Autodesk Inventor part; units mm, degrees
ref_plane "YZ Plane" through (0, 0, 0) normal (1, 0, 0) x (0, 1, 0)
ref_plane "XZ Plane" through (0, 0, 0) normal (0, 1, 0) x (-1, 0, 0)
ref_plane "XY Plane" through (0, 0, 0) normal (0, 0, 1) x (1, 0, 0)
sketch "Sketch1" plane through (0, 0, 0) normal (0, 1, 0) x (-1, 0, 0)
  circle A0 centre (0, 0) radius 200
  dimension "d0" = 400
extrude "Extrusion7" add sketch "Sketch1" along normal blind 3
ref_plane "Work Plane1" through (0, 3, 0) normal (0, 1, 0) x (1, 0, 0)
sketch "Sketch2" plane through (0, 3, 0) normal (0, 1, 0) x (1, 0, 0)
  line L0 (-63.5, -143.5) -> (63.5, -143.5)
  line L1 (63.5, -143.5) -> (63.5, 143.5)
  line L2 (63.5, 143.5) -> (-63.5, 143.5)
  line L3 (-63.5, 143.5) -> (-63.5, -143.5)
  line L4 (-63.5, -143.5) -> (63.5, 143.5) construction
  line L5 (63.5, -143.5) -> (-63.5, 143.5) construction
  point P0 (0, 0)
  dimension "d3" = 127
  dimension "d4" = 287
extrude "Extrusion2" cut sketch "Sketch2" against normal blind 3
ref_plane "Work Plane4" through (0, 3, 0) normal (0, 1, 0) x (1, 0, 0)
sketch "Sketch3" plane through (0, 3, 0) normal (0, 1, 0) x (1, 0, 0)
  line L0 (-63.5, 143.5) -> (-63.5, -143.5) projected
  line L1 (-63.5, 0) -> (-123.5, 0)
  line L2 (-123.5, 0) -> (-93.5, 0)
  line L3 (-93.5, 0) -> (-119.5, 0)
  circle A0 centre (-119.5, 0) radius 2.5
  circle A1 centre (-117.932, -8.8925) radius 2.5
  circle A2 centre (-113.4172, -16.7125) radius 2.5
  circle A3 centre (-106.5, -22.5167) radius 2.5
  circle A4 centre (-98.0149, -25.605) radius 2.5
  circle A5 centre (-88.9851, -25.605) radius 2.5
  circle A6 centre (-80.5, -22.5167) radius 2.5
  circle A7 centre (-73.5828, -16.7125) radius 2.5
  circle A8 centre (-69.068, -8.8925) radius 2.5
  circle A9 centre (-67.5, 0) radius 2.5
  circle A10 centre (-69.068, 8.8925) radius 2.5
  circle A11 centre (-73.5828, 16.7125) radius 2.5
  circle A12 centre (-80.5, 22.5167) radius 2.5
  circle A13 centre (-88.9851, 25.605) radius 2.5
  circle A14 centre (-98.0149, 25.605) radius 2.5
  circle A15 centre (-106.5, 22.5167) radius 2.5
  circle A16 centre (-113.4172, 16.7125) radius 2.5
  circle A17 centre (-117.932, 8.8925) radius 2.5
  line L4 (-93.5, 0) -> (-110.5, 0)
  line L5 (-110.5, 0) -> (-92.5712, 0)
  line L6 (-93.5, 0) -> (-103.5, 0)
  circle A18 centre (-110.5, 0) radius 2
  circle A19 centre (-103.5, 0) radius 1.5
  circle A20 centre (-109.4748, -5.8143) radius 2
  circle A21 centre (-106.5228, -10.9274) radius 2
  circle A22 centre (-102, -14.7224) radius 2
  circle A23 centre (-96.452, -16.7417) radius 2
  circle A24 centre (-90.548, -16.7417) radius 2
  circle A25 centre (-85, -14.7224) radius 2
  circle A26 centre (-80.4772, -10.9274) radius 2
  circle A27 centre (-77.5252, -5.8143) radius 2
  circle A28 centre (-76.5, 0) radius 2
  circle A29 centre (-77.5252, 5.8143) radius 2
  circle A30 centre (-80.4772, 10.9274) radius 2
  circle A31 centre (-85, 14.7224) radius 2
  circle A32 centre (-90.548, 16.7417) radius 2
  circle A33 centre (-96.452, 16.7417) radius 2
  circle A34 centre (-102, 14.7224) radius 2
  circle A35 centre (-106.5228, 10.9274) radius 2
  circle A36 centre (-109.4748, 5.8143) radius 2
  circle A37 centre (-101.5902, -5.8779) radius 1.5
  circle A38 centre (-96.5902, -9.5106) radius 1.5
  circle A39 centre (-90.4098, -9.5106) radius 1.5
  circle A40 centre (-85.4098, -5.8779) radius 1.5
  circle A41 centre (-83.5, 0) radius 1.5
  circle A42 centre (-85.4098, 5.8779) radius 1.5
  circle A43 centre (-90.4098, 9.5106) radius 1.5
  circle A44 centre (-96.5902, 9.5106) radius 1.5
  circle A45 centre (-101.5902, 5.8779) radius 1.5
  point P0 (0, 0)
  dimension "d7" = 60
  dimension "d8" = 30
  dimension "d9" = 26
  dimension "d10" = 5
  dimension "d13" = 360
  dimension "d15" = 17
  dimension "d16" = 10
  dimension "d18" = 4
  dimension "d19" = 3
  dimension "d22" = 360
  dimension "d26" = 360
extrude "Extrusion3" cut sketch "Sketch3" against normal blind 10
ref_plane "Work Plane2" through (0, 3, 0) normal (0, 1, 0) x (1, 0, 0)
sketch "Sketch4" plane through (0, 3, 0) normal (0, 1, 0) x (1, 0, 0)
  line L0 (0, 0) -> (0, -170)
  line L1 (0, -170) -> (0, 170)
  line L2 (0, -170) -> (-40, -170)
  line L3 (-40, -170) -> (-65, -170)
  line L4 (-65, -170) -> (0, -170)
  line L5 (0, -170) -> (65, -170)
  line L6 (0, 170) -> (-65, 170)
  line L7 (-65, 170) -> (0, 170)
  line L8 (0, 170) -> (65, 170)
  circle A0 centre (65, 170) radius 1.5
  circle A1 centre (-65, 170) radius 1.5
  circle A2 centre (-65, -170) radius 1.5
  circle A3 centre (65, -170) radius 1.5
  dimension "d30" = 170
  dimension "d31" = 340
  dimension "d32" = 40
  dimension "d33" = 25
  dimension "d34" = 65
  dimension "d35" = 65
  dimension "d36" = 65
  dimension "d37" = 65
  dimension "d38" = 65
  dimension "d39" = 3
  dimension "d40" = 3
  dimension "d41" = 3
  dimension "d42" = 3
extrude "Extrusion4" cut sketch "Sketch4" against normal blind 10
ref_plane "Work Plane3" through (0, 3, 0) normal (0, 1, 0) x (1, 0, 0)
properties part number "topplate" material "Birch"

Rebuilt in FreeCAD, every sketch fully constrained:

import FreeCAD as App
import Part
import Sketcher

V = App.Vector


def add_polygon(sketch, points):
    """Adds a closed chain of lines whose ends are joined by coincident constraints."""
    first, n = sketch.GeometryCount, len(points)
    for a, b in zip(points, points[1:] + points[:1]):
        sketch.addGeometry(Part.LineSegment(App.Vector(*a, 0), App.Vector(*b, 0)), False)
    for i in range(n):
        sketch.addConstraint(Sketcher.Constraint("Coincident", first + i, 2, first + (i + 1) % n, 1))

doc = App.newDocument("Part")
params = doc.addObject("Spreadsheet::Sheet", "Params")
for row, (alias, value) in enumerate([
    ("sketch1_diameter", "400 mm"),
    ("pad1_length", "3 mm"),
    ("sketch2_width", "127 mm"),
    ("sketch2_height", "287 mm"),
    ("pocket1_length", "3 mm"),
    ("sketch3_diameter", "5 mm"),
    ("sketch3_diameter2", "4 mm"),
    ("sketch3_diameter3", "3 mm"),
    ("pocket2_length", "10 mm"),
    ("sketch4_diameter", "3 mm"),
    ("pocket3_length", "10 mm"),
], start=1):
    params.set(f"A{row}", alias)
    params.set(f"B{row}", "=" + value)
    params.setAlias(f"B{row}", alias)

body = doc.addObject("PartDesign::Body", "Body")

# Sketch on XZ plane
sketch1 = doc.addObject("Sketcher::SketchObject", "Sketch")
body.addObject(sketch1)
sketch1.AttachmentSupport = (doc.XZ_Plane, [""])
sketch1.MapMode = "FlatFace"
sketch1.addGeometry(Part.Circle(V(0, 0, 0), V(0, 0, 1), 200), False)
sketch1.addConstraint(Sketcher.Constraint("Coincident", 0, 3, -1, 1))
sketch1.addConstraint(Sketcher.Constraint("Diameter", 0, 400.0))
sketch1.setExpression("Constraints[1]", "Params.sketch1_diameter")
pad1 = doc.addObject("PartDesign::Pad", "Pad")
body.addObject(pad1)
pad1.Profile = sketch1
pad1.setExpression("Length", "Params.pad1_length")
pad1.Reversed = True

# Sketch on XZ plane
sketch2 = doc.addObject("Sketcher::SketchObject", "Sketch001")
body.addObject(sketch2)
sketch2.AttachmentSupport = (doc.XZ_Plane, [""])
sketch2.MapMode = "FlatFace"
sketch2.AttachmentOffset = App.Placement(V(0, 0, -3), App.Rotation())
add_polygon(sketch2, [(-63.5, -143.5), (-63.5, 143.5), (63.5, 143.5), (63.5, -143.5)])  # lines 0-3
sketch2.addConstraint(Sketcher.Constraint("Vertical", 0))
sketch2.addConstraint(Sketcher.Constraint("Horizontal", 1))
sketch2.addConstraint(Sketcher.Constraint("Vertical", 2))
sketch2.addConstraint(Sketcher.Constraint("Horizontal", 3))
sketch2.addConstraint(Sketcher.Constraint("Symmetric", 0, 2, 2, 2, -1, 1))
sketch2.addConstraint(Sketcher.Constraint("DistanceX", 1, 1, 1, 2, 127.0))
sketch2.addConstraint(Sketcher.Constraint("DistanceY", 0, 1, 0, 2, 287.0))
sketch2.setExpression("Constraints[9]", "Params.sketch2_width")
sketch2.setExpression("Constraints[10]", "Params.sketch2_height")
pocket1 = doc.addObject("PartDesign::Pocket", "Pocket")
body.addObject(pocket1)
pocket1.Profile = sketch2
pocket1.setExpression("Length", "Params.pocket1_length")
pocket1.Reversed = True

# Sketch on XZ plane
sketch3 = doc.addObject("Sketcher::SketchObject", "Sketch002")
body.addObject(sketch3)
sketch3.AttachmentSupport = (doc.XZ_Plane, [""])
sketch3.MapMode = "FlatFace"
sketch3.AttachmentOffset = App.Placement(V(0, 0, -3), App.Rotation())
sketch3.addGeometry(Part.Circle(V(-119.5, 0, 0), V(0, 0, 1), 2.5), False)
sketch3.addGeometry(Part.Circle(V(-110.5, 0, 0), V(0, 0, 1), 2), False)
sketch3.addGeometry(Part.Circle(V(-103.5, 0, 0), V(0, 0, 1), 1.5), False)
sketch3.addGeometry(Part.Circle(V(-67.5, 0, 0), V(0, 0, 1), 2.5), False)
sketch3.addGeometry(Part.Circle(V(-76.5, 0, 0), V(0, 0, 1), 2), False)
sketch3.addGeometry(Part.Circle(V(-83.5, 0, 0), V(0, 0, 1), 1.5), False)
sketch3.addGeometry(Part.Circle(V(-117.932, 8.8925, 0), V(0, 0, 1), 2.5), False)
sketch3.addGeometry(Part.Circle(V(-113.4172, 16.7125, 0), V(0, 0, 1), 2.5), False)
sketch3.addGeometry(Part.Circle(V(-106.5, 22.5167, 0), V(0, 0, 1), 2.5), False)
sketch3.addGeometry(Part.Circle(V(-98.0149, 25.605, 0), V(0, 0, 1), 2.5), False)
sketch3.addGeometry(Part.Circle(V(-88.9851, 25.605, 0), V(0, 0, 1), 2.5), False)
sketch3.addGeometry(Part.Circle(V(-80.5, 22.5167, 0), V(0, 0, 1), 2.5), False)
sketch3.addGeometry(Part.Circle(V(-73.5828, 16.7125, 0), V(0, 0, 1), 2.5), False)
sketch3.addGeometry(Part.Circle(V(-69.068, 8.8925, 0), V(0, 0, 1), 2.5), False)
sketch3.addGeometry(Part.Circle(V(-69.068, -8.8925, 0), V(0, 0, 1), 2.5), False)
sketch3.addGeometry(Part.Circle(V(-73.5828, -16.7125, 0), V(0, 0, 1), 2.5), False)
sketch3.addGeometry(Part.Circle(V(-80.5, -22.5167, 0), V(0, 0, 1), 2.5), False)
sketch3.addGeometry(Part.Circle(V(-88.9851, -25.605, 0), V(0, 0, 1), 2.5), False)
sketch3.addGeometry(Part.Circle(V(-98.0149, -25.605, 0), V(0, 0, 1), 2.5), False)
sketch3.addGeometry(Part.Circle(V(-106.5, -22.5167, 0), V(0, 0, 1), 2.5), False)
sketch3.addGeometry(Part.Circle(V(-113.4172, -16.7125, 0), V(0, 0, 1), 2.5), False)
sketch3.addGeometry(Part.Circle(V(-117.932, -8.8925, 0), V(0, 0, 1), 2.5), False)
sketch3.addGeometry(Part.Circle(V(-109.4748, 5.8143, 0), V(0, 0, 1), 2), False)
sketch3.addGeometry(Part.Circle(V(-106.5228, 10.9274, 0), V(0, 0, 1), 2), False)
sketch3.addGeometry(Part.Circle(V(-102, 14.7224, 0), V(0, 0, 1), 2), False)
sketch3.addGeometry(Part.Circle(V(-96.452, 16.7417, 0), V(0, 0, 1), 2), False)
sketch3.addGeometry(Part.Circle(V(-90.548, 16.7417, 0), V(0, 0, 1), 2), False)
sketch3.addGeometry(Part.Circle(V(-85, 14.7224, 0), V(0, 0, 1), 2), False)
sketch3.addGeometry(Part.Circle(V(-80.4772, 10.9274, 0), V(0, 0, 1), 2), False)
sketch3.addGeometry(Part.Circle(V(-77.5252, 5.8143, 0), V(0, 0, 1), 2), False)
sketch3.addGeometry(Part.Circle(V(-77.5252, -5.8143, 0), V(0, 0, 1), 2), False)
sketch3.addGeometry(Part.Circle(V(-80.4772, -10.9274, 0), V(0, 0, 1), 2), False)
sketch3.addGeometry(Part.Circle(V(-85, -14.7224, 0), V(0, 0, 1), 2), False)
sketch3.addGeometry(Part.Circle(V(-90.548, -16.7417, 0), V(0, 0, 1), 2), False)
sketch3.addGeometry(Part.Circle(V(-96.452, -16.7417, 0), V(0, 0, 1), 2), False)
sketch3.addGeometry(Part.Circle(V(-102, -14.7224, 0), V(0, 0, 1), 2), False)
sketch3.addGeometry(Part.Circle(V(-106.5228, -10.9274, 0), V(0, 0, 1), 2), False)
sketch3.addGeometry(Part.Circle(V(-109.4748, -5.8143, 0), V(0, 0, 1), 2), False)
sketch3.addGeometry(Part.Circle(V(-101.5902, 5.8779, 0), V(0, 0, 1), 1.5), False)
sketch3.addGeometry(Part.Circle(V(-96.5902, 9.5106, 0), V(0, 0, 1), 1.5), False)
sketch3.addGeometry(Part.Circle(V(-90.4098, 9.5106, 0), V(0, 0, 1), 1.5), False)
sketch3.addGeometry(Part.Circle(V(-85.4098, 5.8779, 0), V(0, 0, 1), 1.5), False)
sketch3.addGeometry(Part.Circle(V(-85.4098, -5.8779, 0), V(0, 0, 1), 1.5), False)
sketch3.addGeometry(Part.Circle(V(-90.4098, -9.5106, 0), V(0, 0, 1), 1.5), False)
sketch3.addGeometry(Part.Circle(V(-96.5902, -9.5106, 0), V(0, 0, 1), 1.5), False)
sketch3.addGeometry(Part.Circle(V(-101.5902, -5.8779, 0), V(0, 0, 1), 1.5), False)
sketch3.addConstraint(Sketcher.Constraint("Equal", 0, 3))
sketch3.addConstraint(Sketcher.Constraint("Equal", 1, 4))
sketch3.addConstraint(Sketcher.Constraint("Equal", 2, 5))
sketch3.addConstraint(Sketcher.Constraint("Equal", 3, 6))
sketch3.addConstraint(Sketcher.Constraint("Equal", 6, 7))
sketch3.addConstraint(Sketcher.Constraint("Equal", 7, 8))
sketch3.addConstraint(Sketcher.Constraint("Equal", 8, 9))
sketch3.addConstraint(Sketcher.Constraint("Equal", 9, 10))
sketch3.addConstraint(Sketcher.Constraint("Equal", 10, 11))
sketch3.addConstraint(Sketcher.Constraint("Equal", 11, 12))
sketch3.addConstraint(Sketcher.Constraint("Equal", 12, 13))
sketch3.addConstraint(Sketcher.Constraint("Equal", 13, 14))
sketch3.addConstraint(Sketcher.Constraint("Equal", 14, 15))
sketch3.addConstraint(Sketcher.Constraint("Equal", 15, 16))
sketch3.addConstraint(Sketcher.Constraint("Equal", 16, 17))
sketch3.addConstraint(Sketcher.Constraint("Equal", 17, 18))
sketch3.addConstraint(Sketcher.Constraint("Equal", 18, 19))
sketch3.addConstraint(Sketcher.Constraint("Equal", 19, 20))
sketch3.addConstraint(Sketcher.Constraint("Equal", 20, 21))
sketch3.addConstraint(Sketcher.Constraint("Equal", 4, 22))
sketch3.addConstraint(Sketcher.Constraint("Equal", 22, 23))
sketch3.addConstraint(Sketcher.Constraint("Equal", 23, 24))
sketch3.addConstraint(Sketcher.Constraint("Equal", 24, 25))
sketch3.addConstraint(Sketcher.Constraint("Equal", 25, 26))
sketch3.addConstraint(Sketcher.Constraint("Equal", 26, 27))
sketch3.addConstraint(Sketcher.Constraint("Equal", 27, 28))
sketch3.addConstraint(Sketcher.Constraint("Equal", 28, 29))
sketch3.addConstraint(Sketcher.Constraint("Equal", 29, 30))
sketch3.addConstraint(Sketcher.Constraint("Equal", 30, 31))
sketch3.addConstraint(Sketcher.Constraint("Equal", 31, 32))
sketch3.addConstraint(Sketcher.Constraint("Equal", 32, 33))
sketch3.addConstraint(Sketcher.Constraint("Equal", 33, 34))
sketch3.addConstraint(Sketcher.Constraint("Equal", 34, 35))
sketch3.addConstraint(Sketcher.Constraint("Equal", 35, 36))
sketch3.addConstraint(Sketcher.Constraint("Equal", 36, 37))
sketch3.addConstraint(Sketcher.Constraint("Equal", 5, 38))
sketch3.addConstraint(Sketcher.Constraint("Equal", 38, 39))
sketch3.addConstraint(Sketcher.Constraint("Equal", 39, 40))
sketch3.addConstraint(Sketcher.Constraint("Equal", 40, 41))
sketch3.addConstraint(Sketcher.Constraint("Equal", 41, 42))
sketch3.addConstraint(Sketcher.Constraint("Equal", 42, 43))
sketch3.addConstraint(Sketcher.Constraint("Equal", 43, 44))
sketch3.addConstraint(Sketcher.Constraint("Equal", 44, 45))
sketch3.addConstraint(Sketcher.Constraint("Symmetric", 13, 3, 14, 3, -1))
sketch3.addConstraint(Sketcher.Constraint("Symmetric", 12, 3, 15, 3, -1))
sketch3.addConstraint(Sketcher.Constraint("Symmetric", 11, 3, 16, 3, -1))
sketch3.addConstraint(Sketcher.Constraint("Symmetric", 10, 3, 17, 3, -1))
sketch3.addConstraint(Sketcher.Constraint("Symmetric", 9, 3, 18, 3, -1))
sketch3.addConstraint(Sketcher.Constraint("Symmetric", 8, 3, 19, 3, -1))
sketch3.addConstraint(Sketcher.Constraint("Symmetric", 7, 3, 20, 3, -1))
sketch3.addConstraint(Sketcher.Constraint("Symmetric", 6, 3, 21, 3, -1))
sketch3.addConstraint(Sketcher.Constraint("Symmetric", 29, 3, 30, 3, -1))
sketch3.addConstraint(Sketcher.Constraint("Symmetric", 28, 3, 31, 3, -1))
sketch3.addConstraint(Sketcher.Constraint("Symmetric", 27, 3, 32, 3, -1))
sketch3.addConstraint(Sketcher.Constraint("Symmetric", 26, 3, 33, 3, -1))
sketch3.addConstraint(Sketcher.Constraint("Symmetric", 25, 3, 34, 3, -1))
sketch3.addConstraint(Sketcher.Constraint("Symmetric", 24, 3, 35, 3, -1))
sketch3.addConstraint(Sketcher.Constraint("Symmetric", 23, 3, 36, 3, -1))
sketch3.addConstraint(Sketcher.Constraint("Symmetric", 22, 3, 37, 3, -1))
sketch3.addConstraint(Sketcher.Constraint("Symmetric", 41, 3, 42, 3, -1))
sketch3.addConstraint(Sketcher.Constraint("Symmetric", 40, 3, 43, 3, -1))
sketch3.addConstraint(Sketcher.Constraint("Symmetric", 39, 3, 44, 3, -1))
sketch3.addConstraint(Sketcher.Constraint("Symmetric", 38, 3, 45, 3, -1))
sketch3.addConstraint(Sketcher.Constraint("PointOnObject", 0, 3, -1))
sketch3.addConstraint(Sketcher.Constraint("PointOnObject", 1, 3, -1))
sketch3.addConstraint(Sketcher.Constraint("PointOnObject", 2, 3, -1))
sketch3.addConstraint(Sketcher.Constraint("PointOnObject", 3, 3, -1))
sketch3.addConstraint(Sketcher.Constraint("PointOnObject", 4, 3, -1))
sketch3.addConstraint(Sketcher.Constraint("PointOnObject", 5, 3, -1))
sketch3.addConstraint(Sketcher.Constraint("Horizontal", 9, 3, 10, 3))
sketch3.addConstraint(Sketcher.Constraint("Horizontal", 8, 3, 11, 3))
sketch3.addConstraint(Sketcher.Constraint("Horizontal", 7, 3, 12, 3))
sketch3.addConstraint(Sketcher.Constraint("Horizontal", 6, 3, 13, 3))
sketch3.addConstraint(Sketcher.Constraint("Horizontal", 25, 3, 26, 3))
sketch3.addConstraint(Sketcher.Constraint("Horizontal", 24, 3, 27, 3))
sketch3.addConstraint(Sketcher.Constraint("Horizontal", 23, 3, 28, 3))
sketch3.addConstraint(Sketcher.Constraint("Horizontal", 22, 3, 29, 3))
sketch3.addConstraint(Sketcher.Constraint("Horizontal", 39, 3, 40, 3))
sketch3.addConstraint(Sketcher.Constraint("Horizontal", 38, 3, 41, 3))
sketch3.addConstraint(Sketcher.Constraint("Diameter", 0, 5.0))
sketch3.addConstraint(Sketcher.Constraint("Diameter", 1, 4.0))
sketch3.addConstraint(Sketcher.Constraint("Diameter", 2, 3.0))
sketch3.addConstraint(Sketcher.Constraint("DistanceX", 8, 3, 2, 3, 3.0))
sketch3.addConstraint(Sketcher.Constraint("DistanceX", 1, 3, 8, 3, 4.0))
sketch3.addConstraint(Sketcher.Constraint("DistanceX", 5, 3, 11, 3, 3.0))
sketch3.addConstraint(Sketcher.Constraint("DistanceX", 11, 3, 4, 3, 4.0))
sketch3.addConstraint(Sketcher.Constraint("DistanceX", 8, 3, 11, 3, 26.0))
sketch3.addConstraint(Sketcher.Constraint("DistanceX", 38, 3, 39, 3, 5.0))
sketch3.addConstraint(Sketcher.Constraint("DistanceX", 40, 3, 41, 3, 5.0))
sketch3.addConstraint(Sketcher.Constraint("DistanceX", 24, 3, -1, 1, 102.0))
sketch3.addConstraint(Sketcher.Constraint("DistanceX", 27, 3, -1, 1, 85.0))
sketch3.addConstraint(Sketcher.Constraint("DistanceX", 0, 3, 1, 3, 9.0))
sketch3.addConstraint(Sketcher.Constraint("DistanceX", 2, 3, 3, 3, 36.0))
sketch3.addConstraint(Sketcher.Constraint("DistanceX", 0, 3, -1, 1, 119.5))
sketch3.addConstraint(Sketcher.Constraint("DistanceY", 6, 3, 7, 3, 7.82))
sketch3.addConstraint(Sketcher.Constraint("DistanceY", 24, 3, 7, 3, 1.99))
sketch3.addConstraint(Sketcher.Constraint("DistanceX", 6, 3, -1, 1, 117.932))
sketch3.addConstraint(Sketcher.Constraint("DistanceX", 9, 3, -1, 1, 98.015))
sketch3.addConstraint(Sketcher.Constraint("DistanceY", -1, 1, 9, 3, 25.605))
sketch3.addConstraint(Sketcher.Constraint("DistanceX", 10, 3, -1, 1, 88.985))
sketch3.addConstraint(Sketcher.Constraint("DistanceX", 13, 3, -1, 1, 69.068))
sketch3.addConstraint(Sketcher.Constraint("DistanceX", 25, 3, -1, 1, 96.452))
sketch3.addConstraint(Sketcher.Constraint("DistanceX", 26, 3, -1, 1, 90.548))
sketch3.addConstraint(Sketcher.Constraint("DistanceY", -1, 1, 38, 3, 5.878))
sketch3.addConstraint(Sketcher.Constraint("DistanceX", 7, 3, 10, 3, 24.432))
sketch3.addConstraint(Sketcher.Constraint("DistanceY", 14, 3, 13, 3, 17.785))
sketch3.addConstraint(Sketcher.Constraint("DistanceX", 18, 3, 15, 3, 24.432))
sketch3.addConstraint(Sketcher.Constraint("DistanceX", 22, 3, 23, 3, 2.952))
sketch3.addConstraint(Sketcher.Constraint("DistanceY", 22, 3, 23, 3, 5.113))
sketch3.addConstraint(Sketcher.Constraint("DistanceY", 23, 3, 7, 3, 5.785))
sketch3.addConstraint(Sketcher.Constraint("DistanceY", 25, 3, 8, 3, 5.775))
sketch3.addConstraint(Sketcher.Constraint("DistanceX", 28, 3, 29, 3, 2.952))
sketch3.addConstraint(Sketcher.Constraint("DistanceY", 39, 3, 25, 3, 7.231))
sketch3.addConstraint(Sketcher.Constraint("DistanceY", -1, 1, 8, 3, 22.5167))
sketch3.addConstraint(Sketcher.Constraint("DistanceX", 22, 3, -1, 1, 109.4748))
sketch3.addConstraint(Sketcher.Constraint("DistanceX", 28, 3, -1, 1, 80.4772))
sketch3.addConstraint(Sketcher.Constraint("DistanceX", 38, 3, -1, 1, 101.5902))
sketch3.addConstraint(Sketcher.Constraint("DistanceX", 40, 3, -1, 1, 90.4098))
sketch3.setExpression("Constraints[79]", "Params.sketch3_diameter")
sketch3.setExpression("Constraints[80]", "Params.sketch3_diameter2")
sketch3.setExpression("Constraints[81]", "Params.sketch3_diameter3")
pocket2 = doc.addObject("PartDesign::Pocket", "Pocket001")
body.addObject(pocket2)
pocket2.Profile = sketch3
pocket2.setExpression("Length", "Params.pocket2_length")
pocket2.Reversed = True

# Sketch on XZ plane
sketch4 = doc.addObject("Sketcher::SketchObject", "Sketch003")
body.addObject(sketch4)
sketch4.AttachmentSupport = (doc.XZ_Plane, [""])
sketch4.MapMode = "FlatFace"
sketch4.AttachmentOffset = App.Placement(V(0, 0, -3), App.Rotation())
sketch4.addGeometry(Part.Circle(V(65, 170, 0), V(0, 0, 1), 1.5), False)
sketch4.addGeometry(Part.Circle(V(-65, 170, 0), V(0, 0, 1), 1.5), False)
sketch4.addGeometry(Part.Circle(V(-65, -170, 0), V(0, 0, 1), 1.5), False)
sketch4.addGeometry(Part.Circle(V(65, -170, 0), V(0, 0, 1), 1.5), False)
sketch4.addConstraint(Sketcher.Constraint("Equal", 0, 1))
sketch4.addConstraint(Sketcher.Constraint("Equal", 1, 2))
sketch4.addConstraint(Sketcher.Constraint("Equal", 2, 3))
sketch4.addConstraint(Sketcher.Constraint("Symmetric", 0, 3, 2, 3, -1, 1))
sketch4.addConstraint(Sketcher.Constraint("Symmetric", 1, 3, 3, 3, -1, 1))
sketch4.addConstraint(Sketcher.Constraint("Symmetric", 0, 3, 1, 3, -2))
sketch4.addConstraint(Sketcher.Constraint("Diameter", 0, 3.0))
sketch4.addConstraint(Sketcher.Constraint("DistanceX", -1, 1, 0, 3, 65.0))
sketch4.addConstraint(Sketcher.Constraint("DistanceY", -1, 1, 0, 3, 170.0))
sketch4.setExpression("Constraints[6]", "Params.sketch4_diameter")
pocket3 = doc.addObject("PartDesign::Pocket", "Pocket002")
body.addObject(pocket3)
pocket3.Profile = sketch4
pocket3.setExpression("Length", "Params.pocket3_length")
pocket3.Reversed = True

doc.recompute()
